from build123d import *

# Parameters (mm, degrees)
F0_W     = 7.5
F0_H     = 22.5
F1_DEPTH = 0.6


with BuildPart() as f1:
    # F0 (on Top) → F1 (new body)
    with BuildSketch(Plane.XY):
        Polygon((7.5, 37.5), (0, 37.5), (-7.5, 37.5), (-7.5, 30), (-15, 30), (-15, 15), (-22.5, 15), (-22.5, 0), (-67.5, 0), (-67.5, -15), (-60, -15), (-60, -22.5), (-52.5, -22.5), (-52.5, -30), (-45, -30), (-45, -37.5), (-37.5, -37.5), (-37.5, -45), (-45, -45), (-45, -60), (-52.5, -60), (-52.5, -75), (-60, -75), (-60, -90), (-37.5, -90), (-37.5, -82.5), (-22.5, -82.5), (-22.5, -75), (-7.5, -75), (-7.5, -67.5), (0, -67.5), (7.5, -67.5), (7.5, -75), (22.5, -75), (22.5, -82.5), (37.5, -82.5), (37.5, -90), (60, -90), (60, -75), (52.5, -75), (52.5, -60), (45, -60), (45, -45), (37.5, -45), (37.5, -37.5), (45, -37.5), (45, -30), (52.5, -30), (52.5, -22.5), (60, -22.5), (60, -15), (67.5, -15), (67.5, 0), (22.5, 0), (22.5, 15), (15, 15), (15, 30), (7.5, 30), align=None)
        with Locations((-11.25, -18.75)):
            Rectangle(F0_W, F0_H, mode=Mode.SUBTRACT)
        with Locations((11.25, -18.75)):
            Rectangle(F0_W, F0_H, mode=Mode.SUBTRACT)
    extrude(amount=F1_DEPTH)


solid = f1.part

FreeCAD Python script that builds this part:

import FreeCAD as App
import Part
import Sketcher

doc = App.newDocument("Part")
body = doc.addObject("PartDesign::Body", "Body")

sketch1 = body.newObject("Sketcher::SketchObject", "Sketch")
sketch1.AttachmentSupport = (doc.getObject("XY_Plane"), [""])
sketch1.MapMode = "FlatFace"
sketch1.addGeometry([
    Part.LineSegment(App.Vector(8, 38, 0), App.Vector(-8, 38, 0)),
    Part.LineSegment(App.Vector(-8, 38, 0), App.Vector(-8, 30, 0)),
    Part.LineSegment(App.Vector(-8, 30, 0), App.Vector(-15, 30, 0)),
    Part.LineSegment(App.Vector(-15, 30, 0), App.Vector(-15, 15, 0)),
    Part.LineSegment(App.Vector(-15, 15, 0), App.Vector(-22, 15, 0)),
    Part.LineSegment(App.Vector(-22, 15, 0), App.Vector(-22, 0, 0)),
    Part.LineSegment(App.Vector(-22, 0, 0), App.Vector(-68, 0, 0)),
    Part.LineSegment(App.Vector(-68, 0, 0), App.Vector(-68, -15, 0)),
    Part.LineSegment(App.Vector(-68, -15, 0), App.Vector(-60, -15, 0)),
    Part.LineSegment(App.Vector(-60, -15, 0), App.Vector(-60, -22, 0)),
    Part.LineSegment(App.Vector(-60, -22, 0), App.Vector(-52, -22, 0)),
    Part.LineSegment(App.Vector(-52, -22, 0), App.Vector(-52, -30, 0)),
    Part.LineSegment(App.Vector(-52, -30, 0), App.Vector(-45, -30, 0)),
    Part.LineSegment(App.Vector(-45, -30, 0), App.Vector(-45, -38, 0)),
    Part.LineSegment(App.Vector(-45, -38, 0), App.Vector(-38, -38, 0)),
    Part.LineSegment(App.Vector(-38, -38, 0), App.Vector(-38, -45, 0)),
    Part.LineSegment(App.Vector(-38, -45, 0), App.Vector(-45, -45, 0)),
    Part.LineSegment(App.Vector(-45, -45, 0), App.Vector(-45, -60, 0)),
    Part.LineSegment(App.Vector(-45, -60, 0), App.Vector(-52, -60, 0)),
    Part.LineSegment(App.Vector(-52, -60, 0), App.Vector(-52, -75, 0)),
    Part.LineSegment(App.Vector(-52, -75, 0), App.Vector(-60, -75, 0)),
    Part.LineSegment(App.Vector(-60, -75, 0), App.Vector(-60, -90, 0)),
    Part.LineSegment(App.Vector(-60, -90, 0), App.Vector(-38, -90, 0)),
    Part.LineSegment(App.Vector(-38, -90, 0), App.Vector(-38, -82, 0)),
    Part.LineSegment(App.Vector(-38, -82, 0), App.Vector(-22, -82, 0)),
    Part.LineSegment(App.Vector(-22, -82, 0), App.Vector(-22, -75, 0)),
    Part.LineSegment(App.Vector(-22, -75, 0), App.Vector(-8, -75, 0)),
    Part.LineSegment(App.Vector(-8, -75, 0), App.Vector(-8, -68, 0)),
    Part.LineSegment(App.Vector(-8, -68, 0), App.Vector(8, -68, 0)),
    Part.LineSegment(App.Vector(8, -68, 0), App.Vector(8, -75, 0)),
    Part.LineSegment(App.Vector(8, -75, 0), App.Vector(22, -75, 0)),
    Part.LineSegment(App.Vector(22, -75, 0), App.Vector(22, -82, 0)),
    Part.LineSegment(App.Vector(22, -82, 0), App.Vector(38, -82, 0)),
    Part.LineSegment(App.Vector(38, -82, 0), App.Vector(38, -90, 0)),
    Part.LineSegment(App.Vector(38, -90, 0), App.Vector(60, -90, 0)),
    Part.LineSegment(App.Vector(60, -90, 0), App.Vector(60, -75, 0)),
    Part.LineSegment(App.Vector(60, -75, 0), App.Vector(52, -75, 0)),
    Part.LineSegment(App.Vector(52, -75, 0), App.Vector(52, -60, 0)),
    Part.LineSegment(App.Vector(52, -60, 0), App.Vector(45, -60, 0)),
    Part.LineSegment(App.Vector(45, -60, 0), App.Vector(45, -45, 0)),
    Part.LineSegment(App.Vector(45, -45, 0), App.Vector(38, -45, 0)),
    Part.LineSegment(App.Vector(38, -45, 0), App.Vector(38, -38, 0)),
    Part.LineSegment(App.Vector(38, -38, 0), App.Vector(45, -38, 0)),
    Part.LineSegment(App.Vector(45, -38, 0), App.Vector(45, -30, 0)),
    Part.LineSegment(App.Vector(45, -30, 0), App.Vector(52, -30, 0)),
    Part.LineSegment(App.Vector(52, -30, 0), App.Vector(52, -22, 0)),
    Part.LineSegment(App.Vector(52, -22, 0), App.Vector(60, -22, 0)),
    Part.LineSegment(App.Vector(60, -22, 0), App.Vector(60, -15, 0)),
    Part.LineSegment(App.Vector(60, -15, 0), App.Vector(68, -15, 0)),
    Part.LineSegment(App.Vector(68, -15, 0), App.Vector(68, 0, 0)),
    Part.LineSegment(App.Vector(68, 0, 0), App.Vector(22, 0, 0)),
    Part.LineSegment(App.Vector(22, 0, 0), App.Vector(22, 15, 0)),
    Part.LineSegment(App.Vector(22, 15, 0), App.Vector(15, 15, 0)),
    Part.LineSegment(App.Vector(15, 15, 0), App.Vector(15, 30, 0)),
    Part.LineSegment(App.Vector(15, 30, 0), App.Vector(8, 30, 0)),
    Part.LineSegment(App.Vector(8, 30, 0), App.Vector(8, 38, 0)),
    Part.LineSegment(App.Vector(-8, -30, 0), App.Vector(-15, -30, 0)),
    Part.LineSegment(App.Vector(-15, -30, 0), App.Vector(-15, -8, 0)),
    Part.LineSegment(App.Vector(-15, -8, 0), App.Vector(-8, -8, 0)),
    Part.LineSegment(App.Vector(-8, -8, 0), App.Vector(-8, -30, 0)),
    Part.LineSegment(App.Vector(15, -30, 0), App.Vector(8, -30, 0)),
    Part.LineSegment(App.Vector(8, -30, 0), App.Vector(8, -8, 0)),
    Part.LineSegment(App.Vector(8, -8, 0), App.Vector(15, -8, 0)),
    Part.LineSegment(App.Vector(15, -8, 0), App.Vector(15, -30, 0)),
], False)
sketch1.addConstraint([
    Sketcher.Constraint("Coincident", 0, 2, 1, 1),
    Sketcher.Constraint("Coincident", 1, 2, 2, 1),
    Sketcher.Constraint("Coincident", 2, 2, 3, 1),
    Sketcher.Constraint("Coincident", 3, 2, 4, 1),
    Sketcher.Constraint("Coincident", 4, 2, 5, 1),
    Sketcher.Constraint("Coincident", 5, 2, 6, 1),
    Sketcher.Constraint("Coincident", 6, 2, 7, 1),
    Sketcher.Constraint("Coincident", 7, 2, 8, 1),
    Sketcher.Constraint("Coincident", 8, 2, 9, 1),
    Sketcher.Constraint("Coincident", 9, 2, 10, 1),
    Sketcher.Constraint("Coincident", 10, 2, 11, 1),
    Sketcher.Constraint("Coincident", 11, 2, 12, 1),
    Sketcher.Constraint("Coincident", 12, 2, 13, 1),
    Sketcher.Constraint("Coincident", 13, 2, 14, 1),
    Sketcher.Constraint("Coincident", 14, 2, 15, 1),
    Sketcher.Constraint("Coincident", 15, 2, 16, 1),
    Sketcher.Constraint("Coincident", 16, 2, 17, 1),
    Sketcher.Constraint("Coincident", 17, 2, 18, 1),
    Sketcher.Constraint("Coincident", 18, 2, 19, 1),
    Sketcher.Constraint("Coincident", 19, 2, 20, 1),
    Sketcher.Constraint("Coincident", 20, 2, 21, 1),
    Sketcher.Constraint("Coincident", 21, 2, 22, 1),
    Sketcher.Constraint("Coincident", 22, 2, 23, 1),
    Sketcher.Constraint("Coincident", 23, 2, 24, 1),
    Sketcher.Constraint("Coincident", 24, 2, 25, 1),
    Sketcher.Constraint("Coincident", 25, 2, 26, 1),
    Sketcher.Constraint("Coincident", 26, 2, 27, 1),
    Sketcher.Constraint("Coincident", 27, 2, 28, 1),
    Sketcher.Constraint("Coincident", 28, 2, 29, 1),
    Sketcher.Constraint("Coincident", 29, 2, 30, 1),
    Sketcher.Constraint("Coincident", 30, 2, 31, 1),
    Sketcher.Constraint("Coincident", 31, 2, 32, 1),
    Sketcher.Constraint("Coincident", 32, 2, 33, 1),
    Sketcher.Constraint("Coincident", 33, 2, 34, 1),
    Sketcher.Constraint("Coincident", 34, 2, 35, 1),
    Sketcher.Constraint("Coincident", 35, 2, 36, 1),
    Sketcher.Constraint("Coincident", 36, 2, 37, 1),
    Sketcher.Constraint("Coincident", 37, 2, 38, 1),
    Sketcher.Constraint("Coincident", 38, 2, 39, 1),
    Sketcher.Constraint("Coincident", 39, 2, 40, 1),
    Sketcher.Constraint("Coincident", 40, 2, 41, 1),
    Sketcher.Constraint("Coincident", 41, 2, 42, 1),
    Sketcher.Constraint("Coincident", 42, 2, 43, 1),
    Sketcher.Constraint("Coincident", 43, 2, 44, 1),
    Sketcher.Constraint("Coincident", 44, 2, 45, 1),
    Sketcher.Constraint("Coincident", 45, 2, 46, 1),
    Sketcher.Constraint("Coincident", 46, 2, 47, 1),
    Sketcher.Constraint("Coincident", 47, 2, 48, 1),
    Sketcher.Constraint("Coincident", 48, 2, 49, 1),
    Sketcher.Constraint("Coincident", 49, 2, 50, 1),
    Sketcher.Constraint("Coincident", 50, 2, 51, 1),
    Sketcher.Constraint("Coincident", 51, 2, 52, 1),
    Sketcher.Constraint("Coincident", 52, 2, 53, 1),
    Sketcher.Constraint("Coincident", 53, 2, 54, 1),
    Sketcher.Constraint("Coincident", 54, 2, 55, 1),
    Sketcher.Constraint("Coincident", 55, 2, 0, 1),
    Sketcher.Constraint("Coincident", 56, 2, 57, 1),
    Sketcher.Constraint("Coincident", 57, 2, 58, 1),
    Sketcher.Constraint("Coincident", 58, 2, 59, 1),
    Sketcher.Constraint("Coincident", 59, 2, 56, 1),
    Sketcher.Constraint("Coincident", 60, 2, 61, 1),
    Sketcher.Constraint("Coincident", 61, 2, 62, 1),
    Sketcher.Constraint("Coincident", 62, 2, 63, 1),
    Sketcher.Constraint("Coincident", 63, 2, 60, 1),
    Sketcher.Constraint("Horizontal", 0),
    Sketcher.Constraint("Vertical", 1),
    Sketcher.Constraint("Horizontal", 2),
    Sketcher.Constraint("Vertical", 3),
    Sketcher.Constraint("Horizontal", 4),
    Sketcher.Constraint("Vertical", 5),
    Sketcher.Constraint("Horizontal", 6),
    Sketcher.Constraint("Vertical", 7),
    Sketcher.Constraint("Horizontal", 8),
    Sketcher.Constraint("Vertical", 9),
    Sketcher.Constraint("Horizontal", 10),
    Sketcher.Constraint("Vertical", 11),
    Sketcher.Constraint("Horizontal", 12),
    Sketcher.Constraint("Vertical", 13),
    Sketcher.Constraint("Horizontal", 14),
    Sketcher.Constraint("Vertical", 15),
    Sketcher.Constraint("Horizontal", 16),
    Sketcher.Constraint("Vertical", 17),
    Sketcher.Constraint("Horizontal", 18),
    Sketcher.Constraint("Vertical", 19),
    Sketcher.Constraint("Horizontal", 20),
    Sketcher.Constraint("Vertical", 21),
    Sketcher.Constraint("Horizontal", 22),
    Sketcher.Constraint("Vertical", 23),
    Sketcher.Constraint("Horizontal", 24),
    Sketcher.Constraint("Vertical", 25),
    Sketcher.Constraint("Horizontal", 26),
    Sketcher.Constraint("Vertical", 27),
    Sketcher.Constraint("Horizontal", 28),
    Sketcher.Constraint("Vertical", 29),
    Sketcher.Constraint("Horizontal", 30),
    Sketcher.Constraint("Vertical", 31),
    Sketcher.Constraint("Horizontal", 32),
    Sketcher.Constraint("Vertical", 33),
    Sketcher.Constraint("Horizontal", 34),
    Sketcher.Constraint("Vertical", 35),
    Sketcher.Constraint("Horizontal", 36),
    Sketcher.Constraint("Vertical", 37),
    Sketcher.Constraint("Horizontal", 38),
    Sketcher.Constraint("Vertical", 39),
    Sketcher.Constraint("Horizontal", 40),
    Sketcher.Constraint("Vertical", 41),
    Sketcher.Constraint("Horizontal", 42),
    Sketcher.Constraint("Vertical", 43),
    Sketcher.Constraint("Horizontal", 44),
    Sketcher.Constraint("Vertical", 45),
    Sketcher.Constraint("Horizontal", 46),
    Sketcher.Constraint("Vertical", 47),
    Sketcher.Constraint("Horizontal", 48),
    Sketcher.Constraint("Vertical", 49),
    Sketcher.Constraint("Horizontal", 50),
    Sketcher.Constraint("Vertical", 51),
    Sketcher.Constraint("Horizontal", 52),
    Sketcher.Constraint("Vertical", 53),
    Sketcher.Constraint("Horizontal", 54),
    Sketcher.Constraint("Vertical", 55),
    Sketcher.Constraint("Horizontal", 56),
    Sketcher.Constraint("Vertical", 57),
    Sketcher.Constraint("Horizontal", 58),
    Sketcher.Constraint("Vertical", 59),
    Sketcher.Constraint("Horizontal", 60),
    Sketcher.Constraint("Vertical", 61),
    Sketcher.Constraint("Horizontal", 62),
    Sketcher.Constraint("Vertical", 63),
    Sketcher.Constraint("Symmetric", 6, 2, 49, 2, -1, 1),
    Sketcher.Constraint("Symmetric", 53, 2, 56, 2, -1, 1),
    Sketcher.Constraint("Symmetric", 1, 2, 60, 2, -1, 1),
    Sketcher.Constraint("Symmetric", 26, 2, 29, 2, -2),
    Sketcher.Constraint("Symmetric", 24, 2, 31, 2, -2),
    Sketcher.Constraint("Symmetric", 22, 2, 33, 2, -2),
    Sketcher.Constraint("Symmetric", 20, 2, 35, 2, -2),
    Sketcher.Constraint("Symmetric", 18, 2, 37, 2, -2),
    Sketcher.Constraint("Symmetric", 16, 2, 39, 2, -2),
    Sketcher.Constraint("Symmetric", 14, 2, 41, 2, -2),
    Sketcher.Constraint("Symmetric", 12, 2, 43, 2, -2),
    Sketcher.Constraint("Symmetric", 10, 2, 45, 2, -2),
    Sketcher.Constraint("Symmetric", 8, 2, 47, 2, -2),
    Sketcher.Constraint("Symmetric", 5, 2, 50, 2, -2),
    Sketcher.Constraint("Symmetric", 3, 2, 52, 2, -2),
    Sketcher.Constraint("Symmetric", 1, 2, 54, 2, -2),
    Sketcher.Constraint("Symmetric", 58, 2, 61, 2, -2),
    Sketcher.Constraint("Horizontal", 20, 2, 25, 2),
    Sketcher.Constraint("Horizontal", 44, 2, 56, 2),
    Sketcher.Constraint("Vertical", 13, 2, 16, 2),
    Sketcher.Constraint("Vertical", 11, 2, 18, 2),
    Sketcher.Constraint("Vertical", 9, 2, 20, 2),
    Sketcher.Constraint("Vertical", 15, 2, 22, 2),
    Sketcher.Constraint("Vertical", 5, 2, 24, 2),
    Sketcher.Constraint("Vertical", 1, 2, 26, 2),
    Sketcher.Constraint("Vertical", 53, 2, 62, 2),
    Sketcher.Constraint("Equal", 2, 4),
    Sketcher.Constraint("Equal", 4, 8),
    Sketcher.Constraint("Equal", 8, 10),
    Sketcher.Constraint("Equal", 10, 12),
    Sketcher.Constraint("Equal", 12, 14),
    Sketcher.Constraint("Equal", 0, 24),
    Sketcher.Constraint("Equal", 24, 26),
    Sketcher.Constraint("Equal", 62, 1),
    Sketcher.Constraint("Equal", 32, 3),
    Sketcher.Constraint("Equal", 3, 5),
    Sketcher.Constraint("Equal", 5, 7),
    Sketcher.Constraint("Equal", 1, 9),
    Sketcher.Constraint("Equal", 11, 13),
    Sketcher.Constraint("Equal", 13, 15),
    Sketcher.Constraint("Equal", 7, 17),
    Sketcher.Constraint("Equal", 17, 19),
    Sketcher.Constraint("Equal", 19, 21),
    Sketcher.Constraint("Equal", 15, 23),
    Sketcher.Constraint("Equal", 25, 27),
    Sketcher.Constraint("Equal", 34, 57),
    Sketcher.Constraint("DistanceX", 0, 2, 0, 1, 15.0),
])
pad1 = body.newObject("PartDesign::Pad", "Pad")
pad1.Profile = sketch1
pad1.Length = 0.6

doc.recompute()
